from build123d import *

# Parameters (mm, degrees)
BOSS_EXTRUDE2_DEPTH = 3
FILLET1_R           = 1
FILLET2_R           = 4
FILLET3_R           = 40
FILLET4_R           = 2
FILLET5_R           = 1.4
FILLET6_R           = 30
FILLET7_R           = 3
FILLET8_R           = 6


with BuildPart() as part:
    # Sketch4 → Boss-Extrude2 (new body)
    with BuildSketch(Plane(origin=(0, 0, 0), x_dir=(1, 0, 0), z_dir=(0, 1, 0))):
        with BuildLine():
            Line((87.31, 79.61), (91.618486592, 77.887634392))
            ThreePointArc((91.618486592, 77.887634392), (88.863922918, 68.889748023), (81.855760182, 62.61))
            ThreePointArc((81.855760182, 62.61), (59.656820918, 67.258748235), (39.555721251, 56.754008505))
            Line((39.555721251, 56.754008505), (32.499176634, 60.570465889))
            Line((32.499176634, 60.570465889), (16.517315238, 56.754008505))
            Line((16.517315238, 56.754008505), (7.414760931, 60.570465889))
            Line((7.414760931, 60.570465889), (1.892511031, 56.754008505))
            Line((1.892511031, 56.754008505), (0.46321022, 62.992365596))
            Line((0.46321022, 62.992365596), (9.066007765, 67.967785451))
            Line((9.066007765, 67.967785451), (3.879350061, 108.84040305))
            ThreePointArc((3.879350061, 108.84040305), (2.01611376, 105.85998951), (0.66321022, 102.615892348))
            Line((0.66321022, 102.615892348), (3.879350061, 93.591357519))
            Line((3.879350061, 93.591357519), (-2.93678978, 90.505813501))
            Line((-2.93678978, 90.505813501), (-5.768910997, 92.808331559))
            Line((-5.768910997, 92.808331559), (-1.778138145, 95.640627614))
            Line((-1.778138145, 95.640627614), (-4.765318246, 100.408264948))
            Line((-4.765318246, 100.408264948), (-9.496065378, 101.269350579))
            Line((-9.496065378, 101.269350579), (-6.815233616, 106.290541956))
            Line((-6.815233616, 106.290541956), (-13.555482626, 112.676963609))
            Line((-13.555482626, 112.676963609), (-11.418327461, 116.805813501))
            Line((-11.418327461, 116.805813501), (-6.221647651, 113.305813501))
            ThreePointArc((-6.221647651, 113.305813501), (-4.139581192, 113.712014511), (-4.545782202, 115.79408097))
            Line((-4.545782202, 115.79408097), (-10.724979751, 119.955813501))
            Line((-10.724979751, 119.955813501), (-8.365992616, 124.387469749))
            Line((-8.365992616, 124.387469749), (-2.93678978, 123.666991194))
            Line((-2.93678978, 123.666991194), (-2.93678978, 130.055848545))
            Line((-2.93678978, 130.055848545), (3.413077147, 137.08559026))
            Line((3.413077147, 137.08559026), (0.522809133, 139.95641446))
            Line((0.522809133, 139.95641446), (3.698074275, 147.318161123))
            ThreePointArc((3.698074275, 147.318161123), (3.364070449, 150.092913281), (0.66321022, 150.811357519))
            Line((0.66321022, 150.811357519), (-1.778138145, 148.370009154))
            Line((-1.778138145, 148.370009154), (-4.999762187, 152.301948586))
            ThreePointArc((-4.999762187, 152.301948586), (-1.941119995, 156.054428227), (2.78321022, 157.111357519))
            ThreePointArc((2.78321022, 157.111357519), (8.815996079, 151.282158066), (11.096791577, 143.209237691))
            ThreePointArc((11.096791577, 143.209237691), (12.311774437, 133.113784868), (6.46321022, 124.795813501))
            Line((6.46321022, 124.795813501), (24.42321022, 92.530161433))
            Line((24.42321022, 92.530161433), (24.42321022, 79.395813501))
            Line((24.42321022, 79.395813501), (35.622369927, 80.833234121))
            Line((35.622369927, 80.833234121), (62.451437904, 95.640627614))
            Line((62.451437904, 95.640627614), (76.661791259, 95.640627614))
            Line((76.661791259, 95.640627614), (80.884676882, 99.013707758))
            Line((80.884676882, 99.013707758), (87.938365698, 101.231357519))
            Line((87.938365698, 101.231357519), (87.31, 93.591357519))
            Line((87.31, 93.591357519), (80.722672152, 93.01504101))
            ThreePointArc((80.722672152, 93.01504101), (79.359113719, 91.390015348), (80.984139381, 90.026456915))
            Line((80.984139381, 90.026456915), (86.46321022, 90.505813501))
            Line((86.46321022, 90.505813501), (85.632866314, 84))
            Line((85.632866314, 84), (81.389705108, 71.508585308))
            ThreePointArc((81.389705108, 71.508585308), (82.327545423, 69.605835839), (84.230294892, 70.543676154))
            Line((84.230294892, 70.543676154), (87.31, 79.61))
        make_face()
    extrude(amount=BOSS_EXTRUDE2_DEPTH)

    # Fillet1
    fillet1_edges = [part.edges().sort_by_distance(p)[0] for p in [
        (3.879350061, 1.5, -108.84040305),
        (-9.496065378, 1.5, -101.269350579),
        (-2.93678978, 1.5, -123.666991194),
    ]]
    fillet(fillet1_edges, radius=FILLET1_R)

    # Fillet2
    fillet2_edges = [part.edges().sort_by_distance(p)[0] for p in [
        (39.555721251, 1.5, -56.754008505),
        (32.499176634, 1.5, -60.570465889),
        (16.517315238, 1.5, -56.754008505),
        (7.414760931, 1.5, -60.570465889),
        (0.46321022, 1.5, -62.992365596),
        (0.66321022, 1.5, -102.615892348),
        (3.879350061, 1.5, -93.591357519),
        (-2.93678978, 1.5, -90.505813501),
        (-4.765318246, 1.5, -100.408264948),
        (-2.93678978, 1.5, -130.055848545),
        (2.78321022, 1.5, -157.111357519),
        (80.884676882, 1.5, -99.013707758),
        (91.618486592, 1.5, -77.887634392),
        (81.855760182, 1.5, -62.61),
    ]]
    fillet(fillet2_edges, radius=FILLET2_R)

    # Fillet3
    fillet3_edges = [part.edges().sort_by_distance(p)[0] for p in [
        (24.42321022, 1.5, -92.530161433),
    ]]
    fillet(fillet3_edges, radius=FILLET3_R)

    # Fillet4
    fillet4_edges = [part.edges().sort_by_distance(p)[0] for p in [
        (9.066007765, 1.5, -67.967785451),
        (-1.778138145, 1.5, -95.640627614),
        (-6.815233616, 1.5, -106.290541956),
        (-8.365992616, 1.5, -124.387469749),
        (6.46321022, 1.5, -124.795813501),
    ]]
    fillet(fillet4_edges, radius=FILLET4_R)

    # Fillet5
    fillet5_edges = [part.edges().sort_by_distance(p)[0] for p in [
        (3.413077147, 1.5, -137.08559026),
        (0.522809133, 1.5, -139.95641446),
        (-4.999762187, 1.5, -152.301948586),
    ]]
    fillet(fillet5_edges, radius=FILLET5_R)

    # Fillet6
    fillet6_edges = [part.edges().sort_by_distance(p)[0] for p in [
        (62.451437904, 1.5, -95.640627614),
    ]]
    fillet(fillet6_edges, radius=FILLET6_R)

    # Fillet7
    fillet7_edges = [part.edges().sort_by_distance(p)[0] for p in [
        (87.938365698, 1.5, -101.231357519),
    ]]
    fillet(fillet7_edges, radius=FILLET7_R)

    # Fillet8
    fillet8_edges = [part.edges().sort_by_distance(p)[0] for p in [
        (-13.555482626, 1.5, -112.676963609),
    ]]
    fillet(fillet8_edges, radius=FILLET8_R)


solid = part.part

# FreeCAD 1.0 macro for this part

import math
import FreeCAD as App
import Part
import Sketcher
from FreeCAD import Vector
Q = App.Units.Quantity


def edges_at(feature, points):
    """Names of the edges that pass closest to the given points."""
    edges = feature.Shape.Edges
    near = lambda p: min(range(len(edges)), key=lambda i: edges[i].distToShape(Part.Vertex(*p))[0])
    return sorted({f"Edge{near(p) + 1}" for p in points})

doc = App.newDocument("Part")
body = doc.addObject("PartDesign::Body", "Body")

sketch1 = body.newObject("Sketcher::SketchObject", "Sketch")
sketch1.AttachmentSupport = (doc.getObject("XZ_Plane"), [""])
sketch1.MapMode = "FlatFace"
sketch1.addGeometry([
    Part.LineSegment(Vector(91.618487, -77.887634, 0), Vector(87.31, -79.61, 0)),
    Part.LineSegment(Vector(87.31, -79.61, 0), Vector(84.230295, -70.543676, 0)),
    Part.ArcOfCircle(Part.Circle(Vector(82.81, -71.026131, 0), Vector(0, 0, 1), 1.5), math.radians(18.761915), math.radians(198.761915)),
    Part.LineSegment(Vector(81.389705, -71.508585, 0), Vector(85.632866, -84, 0)),
    Part.LineSegment(Vector(85.632866, -84, 0), Vector(86.46321, -90.505814, 0)),
    Part.LineSegment(Vector(86.46321, -90.505814, 0), Vector(80.984139, -90.026457, 0)),
    Part.ArcOfCircle(Part.Circle(Vector(80.853406, -91.520749, 0), Vector(0, 0, 1), 1.5), math.radians(85), math.radians(265)),
    Part.LineSegment(Vector(80.722672, -93.015041, 0), Vector(87.31, -93.591358, 0)),
    Part.LineSegment(Vector(87.31, -93.591358, 0), Vector(87.938366, -101.231358, 0)),
    Part.LineSegment(Vector(87.938366, -101.231358, 0), Vector(80.884677, -99.013708, 0)),
    Part.LineSegment(Vector(80.884677, -99.013708, 0), Vector(76.661791, -95.640628, 0)),
    Part.LineSegment(Vector(76.661791, -95.640628, 0), Vector(62.451438, -95.640628, 0)),
    Part.LineSegment(Vector(62.451438, -95.640628, 0), Vector(35.62237, -80.833234, 0)),
    Part.LineSegment(Vector(35.62237, -80.833234, 0), Vector(24.42321, -79.395814, 0)),
    Part.LineSegment(Vector(24.42321, -79.395814, 0), Vector(24.42321, -92.530161, 0)),
    Part.LineSegment(Vector(24.42321, -92.530161, 0), Vector(6.46321, -124.795814, 0)),
    Part.ArcOfCircle(Part.Circle(Vector(-1.454251, -136.577888, 0), Vector(0, 0, 1), 14.195192), math.radians(-27.849755), math.radians(56.099209)),
    Part.ArcOfCircle(Part.Circle(Vector(-4.999762, -143.020222, 0), Vector(0, 0, 1), 16.097663), math.radians(-61.086765), math.radians(-0.672773)),
    Part.ArcOfCircle(Part.Circle(Vector(1.946903, -149.762517, 0), Vector(0, 0, 1), 7.396274), math.radians(-159.919547), math.radians(-83.507597)),
    Part.LineSegment(Vector(-4.999762, -152.301949, 0), Vector(-1.778138, -148.370009, 0)),
    Part.LineSegment(Vector(-1.778138, -148.370009, 0), Vector(0.66321, -150.811358, 0)),
    Part.ArcOfCircle(Part.Circle(Vector(1.483472, -148.459062, 0), Vector(0, 0, 1), 2.491209), math.radians(-109.224011), math.radians(27.256255)),
    Part.LineSegment(Vector(3.698074, -147.318161, 0), Vector(0.522809, -139.956414, 0)),
    Part.LineSegment(Vector(0.522809, -139.956414, 0), Vector(3.413077, -137.08559, 0)),
    Part.LineSegment(Vector(3.413077, -137.08559, 0), Vector(-2.93679, -130.055849, 0)),
    Part.LineSegment(Vector(-2.93679, -130.055849, 0), Vector(-2.93679, -123.666991, 0)),
    Part.LineSegment(Vector(-2.93679, -123.666991, 0), Vector(-8.365993, -124.38747, 0)),
    Part.LineSegment(Vector(-8.365993, -124.38747, 0), Vector(-10.72498, -119.955814, 0)),
    Part.LineSegment(Vector(-10.72498, -119.955814, 0), Vector(-4.545782, -115.794081, 0)),
    Part.ArcOfCircle(Part.Circle(Vector(-5.383715, -114.549947, 0), Vector(0, 0, 1), 1.5), math.radians(-56.039459), math.radians(123.960541)),
    Part.LineSegment(Vector(-6.221648, -113.305814, 0), Vector(-11.418327, -116.805814, 0)),
    Part.LineSegment(Vector(-11.418327, -116.805814, 0), Vector(-13.555483, -112.676964, 0)),
    Part.LineSegment(Vector(-13.555483, -112.676964, 0), Vector(-6.815234, -106.290542, 0)),
    Part.LineSegment(Vector(-6.815234, -106.290542, 0), Vector(-9.496065, -101.269351, 0)),
    Part.LineSegment(Vector(-9.496065, -101.269351, 0), Vector(-4.765318, -100.408265, 0)),
    Part.LineSegment(Vector(-4.765318, -100.408265, 0), Vector(-1.778138, -95.640628, 0)),
    Part.LineSegment(Vector(-1.778138, -95.640628, 0), Vector(-5.768911, -92.808332, 0)),
    Part.LineSegment(Vector(-5.768911, -92.808332, 0), Vector(-2.93679, -90.505814, 0)),
    Part.LineSegment(Vector(-2.93679, -90.505814, 0), Vector(3.87935, -93.591358, 0)),
    Part.LineSegment(Vector(3.87935, -93.591358, 0), Vector(0.66321, -102.615892, 0)),
    Part.ArcOfCircle(Part.Circle(Vector(21.123731, -95.987283, 0), Vector(0, 0, 1), 21.507473), math.radians(-162.049194), math.radians(-143.300951)),
    Part.LineSegment(Vector(3.87935, -108.840403, 0), Vector(9.066008, -67.967785, 0)),
    Part.LineSegment(Vector(9.066008, -67.967785, 0), Vector(0.46321, -62.992366, 0)),
    Part.LineSegment(Vector(0.46321, -62.992366, 0), Vector(1.892511, -56.754009, 0)),
    Part.LineSegment(Vector(1.892511, -56.754009, 0), Vector(7.414761, -60.570466, 0)),
    Part.LineSegment(Vector(7.414761, -60.570466, 0), Vector(16.517315, -56.754009, 0)),
    Part.LineSegment(Vector(16.517315, -56.754009, 0), Vector(32.499177, -60.570466, 0)),
    Part.LineSegment(Vector(32.499177, -60.570466, 0), Vector(39.555721, -56.754009, 0)),
    Part.ArcOfCircle(Part.Circle(Vector(64.267942, -33.950881, 0), Vector(0, 0, 1), 33.625533), math.radians(-137.300817), math.radians(-58.462971)),
    Part.ArcOfCircle(Part.Circle(Vector(74.082369, -78.335469, 0), Vector(0, 0, 1), 17.541835), math.radians(1.462892), math.radians(63.695958)),
], False)
sketch1.addConstraint([
    Sketcher.Constraint("Coincident", 0, 2, 1, 1),
    Sketcher.Constraint("Tangent", 1, 2, 2, 1),
    Sketcher.Constraint("Tangent", 2, 2, 3, 1),
    Sketcher.Constraint("Coincident", 3, 2, 4, 1),
    Sketcher.Constraint("Coincident", 4, 2, 5, 1),
    Sketcher.Constraint("Tangent", 5, 2, 6, 1),
    Sketcher.Constraint("Tangent", 6, 2, 7, 1),
    Sketcher.Constraint("Coincident", 7, 2, 8, 1),
    Sketcher.Constraint("Coincident", 8, 2, 9, 1),
    Sketcher.Constraint("Coincident", 9, 2, 10, 1),
    Sketcher.Constraint("Coincident", 10, 2, 11, 1),
    Sketcher.Constraint("Coincident", 11, 2, 12, 1),
    Sketcher.Constraint("Coincident", 12, 2, 13, 1),
    Sketcher.Constraint("Coincident", 13, 2, 14, 1),
    Sketcher.Constraint("Coincident", 14, 2, 15, 1),
    Sketcher.Constraint("Coincident", 15, 2, 16, 2),
    Sketcher.Constraint("Coincident", 16, 1, 17, 2),
    Sketcher.Constraint("Coincident", 17, 1, 18, 2),
    Sketcher.Constraint("Coincident", 18, 1, 19, 1),
    Sketcher.Constraint("Coincident", 19, 2, 20, 1),
    Sketcher.Constraint("Coincident", 20, 2, 21, 1),
    Sketcher.Constraint("Coincident", 21, 2, 22, 1),
    Sketcher.Constraint("Coincident", 22, 2, 23, 1),
    Sketcher.Constraint("Coincident", 23, 2, 24, 1),
    Sketcher.Constraint("Coincident", 24, 2, 25, 1),
    Sketcher.Constraint("Coincident", 25, 2, 26, 1),
    Sketcher.Constraint("Coincident", 26, 2, 27, 1),
    Sketcher.Constraint("Coincident", 27, 2, 28, 1),
    Sketcher.Constraint("Tangent", 28, 2, 29, 1),
    Sketcher.Constraint("Tangent", 29, 2, 30, 1),
    Sketcher.Constraint("Coincident", 30, 2, 31, 1),
    Sketcher.Constraint("Coincident", 31, 2, 32, 1),
    Sketcher.Constraint("Coincident", 32, 2, 33, 1),
    Sketcher.Constraint("Coincident", 33, 2, 34, 1),
    Sketcher.Constraint("Coincident", 34, 2, 35, 1),
    Sketcher.Constraint("Coincident", 35, 2, 36, 1),
    Sketcher.Constraint("Coincident", 36, 2, 37, 1),
    Sketcher.Constraint("Coincident", 37, 2, 38, 1),
    Sketcher.Constraint("Coincident", 38, 2, 39, 1),
    Sketcher.Constraint("Coincident", 39, 2, 40, 1),
    Sketcher.Constraint("Coincident", 40, 2, 41, 1),
    Sketcher.Constraint("Coincident", 41, 2, 42, 1),
    Sketcher.Constraint("Coincident", 42, 2, 43, 1),
    Sketcher.Constraint("Coincident", 43, 2, 44, 1),
    Sketcher.Constraint("Coincident", 44, 2, 45, 1),
    Sketcher.Constraint("Coincident", 45, 2, 46, 1),
    Sketcher.Constraint("Coincident", 46, 2, 47, 1),
    Sketcher.Constraint("Coincident", 47, 2, 48, 1),
    Sketcher.Constraint("Coincident", 48, 2, 49, 2),
    Sketcher.Constraint("Coincident", 49, 1, 0, 1),
    Sketcher.Constraint("Horizontal", 11),
    Sketcher.Constraint("Vertical", 14),
    Sketcher.Constraint("Vertical", 25),
    Sketcher.Constraint("Equal", 2, 6),
    Sketcher.Constraint("Equal", 6, 29),
    Sketcher.Constraint("Parallel", 1, 3),
    Sketcher.Constraint("Parallel", 5, 7),
    Sketcher.Constraint("Parallel", 28, 30),
    Sketcher.Constraint("Horizontal", 11, 2, 35, 2),
    Sketcher.Constraint("Horizontal", 4, 2, 37, 2),
    Sketcher.Constraint("Horizontal", 7, 2, 38, 2),
    Sketcher.Constraint("Horizontal", 43, 2, 45, 2),
    Sketcher.Constraint("Horizontal", 44, 2, 46, 2),
    Sketcher.Constraint("Horizontal", 45, 2, 47, 2),
    Sketcher.Constraint("Vertical", 0, 2, 7, 2),
    Sketcher.Constraint("Vertical", 17, 3, 18, 1),
    Sketcher.Constraint("Vertical", 19, 2, 35, 2),
    Sketcher.Constraint("Vertical", 25, 2, 37, 2),
    Sketcher.Constraint("Vertical", 20, 2, 39, 2),
    Sketcher.Constraint("Vertical", 38, 2, 40, 2),
    Sketcher.Constraint("Radius", 2, Q("1.5 mm")),
    Sketcher.Constraint("Angle", 5, Q("175 deg")),
    Sketcher.Constraint("Angle", 20, Q("-45 deg")),
    Sketcher.Constraint("DistanceY", 3, 2, -1, 1, Q("84 mm")),
    Sketcher.Constraint("DistanceY", 0, 2, 48, 2, Q("17 mm")),
    Sketcher.Constraint("Distance", 5, Q("5.5 mm")),
    Sketcher.Constraint("Distance", 43, Q("6.4 mm")),
    Sketcher.Constraint("DistanceX", 2, 3, 0, 2, Q("4.5 mm")),
    Sketcher.Constraint("DistanceY", 17, 1, 20, 2, Q("6.3 mm")),
    Sketcher.Constraint("DistanceX", 24, 2, 15, 2, Q("9.4 mm")),
    Sketcher.Constraint("DistanceY", 30, 2, 29, 2, Q("3.5 mm")),
    Sketcher.Constraint("DistanceX", 37, 2, 42, 2, Q("3.4 mm")),
    Sketcher.Constraint("Distance", 0, Q("4.64 mm")),
    Sketcher.Constraint("Distance", 28, Q("7.45 mm")),
    Sketcher.Constraint("Distance", 37, Q("3.65 mm")),
    Sketcher.Constraint("DistanceX", -1, 1, 2, 3, Q("82.81 mm")),
    Sketcher.Constraint("DistanceY", 0, 2, -1, 1, Q("79.61 mm")),
    Sketcher.Constraint("Radius", 21, Q("2.491209 mm")),
    Sketcher.Constraint("DistanceY", 8, 2, 7, 2, Q("7.64 mm")),
    Sketcher.Constraint("DistanceX", 12, 2, 49, 3, Q("38.459999 mm")),
    Sketcher.Constraint("DistanceX", 20, 2, 17, 1, Q("2.12 mm")),
    Sketcher.Constraint("DistanceY", 15, 2, 27, 2, Q("4.84 mm")),
    Sketcher.Constraint("DistanceY", 27, 2, 29, 2, Q("6.65 mm")),
    Sketcher.Constraint("DistanceX", 42, 2, 13, 2, Q("23.96 mm")),
    Sketcher.Constraint("Distance", 38, Q("7.482001 mm")),
    Sketcher.Constraint("Radius", 16, Q("14.195192 mm")),
    Sketcher.Constraint("Radius", 17, Q("16.097663 mm")),
    Sketcher.Constraint("Radius", 18, Q("7.396274 mm")),
    Sketcher.Constraint("Radius", 40, Q("21.507473 mm")),
    Sketcher.Constraint("Radius", 48, Q("33.625533 mm")),
    Sketcher.Constraint("Radius", 49, Q("17.541835 mm")),
    Sketcher.Constraint("Distance", 26, Q("5.4768 mm")),
    Sketcher.Constraint("Distance", 27, Q("5.020398 mm")),
    Sketcher.Constraint("DistanceY", 29, 3, 6, 3, Q("23.029198 mm")),
    Sketcher.Constraint("DistanceX", 6, 3, 2, 2, Q("0.536299 mm")),
    Sketcher.Constraint("DistanceX", 11, 2, 5, 2, Q("18.532701 mm")),
    Sketcher.Constraint("DistanceY", 21, 3, 21, 2, Q("1.140901 mm")),
    Sketcher.Constraint("DistanceX", 24, 2, 22, 2, Q("3.459599 mm")),
    Sketcher.Constraint("DistanceY", 23, 2, 25, 2, Q("13.418599 mm")),
    Sketcher.Constraint("DistanceX", 31, 2, 28, 2, Q("9.0097 mm")),
    Sketcher.Constraint("DistanceY", 31, 2, 34, 2, Q("12.268699 mm")),
    Sketcher.Constraint("DistanceX", 42, 2, 43, 2, Q("1.429301 mm")),
    Sketcher.Constraint("DistanceY", 42, 2, 44, 2, Q("2.4219 mm")),
    Sketcher.Constraint("Distance", 4, Q("6.558588 mm")),
    Sketcher.Constraint("Distance", 7, Q("6.61249 mm")),
    Sketcher.Constraint("Distance", 12, Q("30.64405 mm")),
    Sketcher.Constraint("Distance", 13, Q("11.29103 mm")),
    Sketcher.Constraint("Distance", 19, Q("5.083209 mm")),
    Sketcher.Constraint("Distance", 23, Q("4.073731 mm")),
    Sketcher.Constraint("Distance", 24, Q("9.473018 mm")),
    Sketcher.Constraint("Distance", 32, Q("9.285329 mm")),
    Sketcher.Constraint("Distance", 33, Q("5.692031 mm")),
    Sketcher.Constraint("Distance", 39, Q("9.58049 mm")),
    Sketcher.Constraint("Distance", 41, Q("41.200392 mm")),
    Sketcher.Constraint("Distance", 44, Q("6.712719 mm")),
    Sketcher.Constraint("Distance", 45, Q("9.87025 mm")),
    Sketcher.Constraint("Distance", 47, Q("8.022479 mm")),
    Sketcher.Constraint("DistanceX", 11, 2, 11, 1, Q("14.210353 mm")),
    Sketcher.Constraint("DistanceY", 14, 2, 14, 1, Q("13.134348 mm")),
    Sketcher.Constraint("DistanceY", 25, 1, 25, 2, Q("6.388857 mm")),
    Sketcher.Constraint("DistanceX", 16, 3, -1, 1, Q("1.454251 mm")),
    Sketcher.Constraint("DistanceY", 16, 3, -1, 1, Q("136.577888 mm")),
    Sketcher.Constraint("DistanceY", 17, 3, -1, 1, Q("143.020222 mm")),
    Sketcher.Constraint("DistanceX", -1, 1, 21, 3, Q("1.483472 mm")),
    Sketcher.Constraint("DistanceX", -1, 1, 40, 3, Q("21.123731 mm")),
    Sketcher.Constraint("DistanceX", -1, 1, 48, 3, Q("64.267942 mm")),
    Sketcher.Constraint("DistanceY", 48, 3, -1, 1, Q("33.950881 mm")),
    Sketcher.Constraint("DistanceX", -1, 1, 49, 3, Q("74.082369 mm")),
    Sketcher.Constraint("DistanceY", 14, 2, -1, 1, Q("92.530161 mm")),
    Sketcher.Constraint("DistanceX", -1, 1, 16, 1, Q("11.096792 mm")),
    Sketcher.Constraint("DistanceX", -1, 1, 17, 1, Q("2.78321 mm")),
    Sketcher.Constraint("DistanceY", 18, 1, -1, 1, Q("152.301949 mm")),
    Sketcher.Constraint("DistanceY", 23, 2, -1, 1, Q("137.08559 mm")),
    Sketcher.Constraint("DistanceY", 26, 2, -1, 1, Q("124.38747 mm")),
    Sketcher.Constraint("DistanceY", 32, 2, -1, 1, Q("106.290542 mm")),
    Sketcher.Constraint("DistanceY", 33, 2, -1, 1, Q("101.269351 mm")),
    Sketcher.Constraint("DistanceX", 34, 2, -1, 1, Q("4.765318 mm")),
    Sketcher.Constraint("DistanceX", 36, 2, -1, 1, Q("5.768911 mm")),
    Sketcher.Constraint("DistanceY", 43, 2, -1, 1, Q("56.754009 mm")),
    Sketcher.Constraint("DistanceX", 6, 3, 8, 2, Q("7.08496 mm")),
    Sketcher.Constraint("DistanceX", 9, 2, 8, 2, Q("7.053689 mm")),
    Sketcher.Constraint("DistanceY", 8, 2, 9, 2, Q("2.21765 mm")),
    Sketcher.Constraint("DistanceY", 30, 2, 31, 2, Q("4.12885 mm")),
    Sketcher.Constraint("DistanceY", 13, 2, 41, 2, Q("11.428028 mm")),
])
pad1 = body.newObject("PartDesign::Pad", "Pad")
pad1.Profile = sketch1
pad1.Length = 3
pad1.Reversed = True
doc.recompute()

fillet = body.newObject("PartDesign::Fillet", "Fillet")
fillet.Base = (pad1, edges_at(pad1, [(3.879, 1.5, -108.84), (-9.496, 1.5, -101.269), (-2.937, 1.5, -123.667)]))
fillet.Radius = 1
doc.recompute()

fillet2 = body.newObject("PartDesign::Fillet", "Fillet001")
fillet2.Base = (fillet, edges_at(fillet, [
    (39.556, 1.5, -56.754),
    (32.499, 1.5, -60.57),
    (16.517, 1.5, -56.754),
    (7.415, 1.5, -60.57),
    (0.463, 1.5, -62.992),
    (0.663, 1.5, -102.616),
    (3.879, 1.5, -93.591),
    (-2.937, 1.5, -90.506),
    (-4.765, 1.5, -100.408),
    (-2.937, 1.5, -130.056),
    (2.783, 1.5, -157.111),
    (80.885, 1.5, -99.014),
    (91.618, 1.5, -77.888),
    (81.856, 1.5, -62.61),
]))
fillet2.Radius = 4
doc.recompute()

fillet3 = body.newObject("PartDesign::Fillet", "Fillet002")
fillet3.Base = (fillet2, edges_at(fillet2, [(24.423, 1.5, -92.53)]))
fillet3.Radius = 40
doc.recompute()

fillet4 = body.newObject("PartDesign::Fillet", "Fillet003")
fillet4.Base = (fillet3, edges_at(fillet3, [
    (9.066, 1.5, -67.968),
    (-1.778, 1.5, -95.641),
    (-6.815, 1.5, -106.291),
    (-8.366, 1.5, -124.387),
    (6.463, 1.5, -124.796),
]))
fillet4.Radius = 2
doc.recompute()

fillet5 = body.newObject("PartDesign::Fillet", "Fillet004")
fillet5.Base = (fillet4, edges_at(fillet4, [(3.413, 1.5, -137.086), (0.523, 1.5, -139.956), (-5, 1.5, -152.302)]))
fillet5.Radius = 1.4
doc.recompute()

fillet6 = body.newObject("PartDesign::Fillet", "Fillet005")
fillet6.Base = (fillet5, edges_at(fillet5, [(62.451, 1.5, -95.641)]))
fillet6.Radius = 30
doc.recompute()

fillet7 = body.newObject("PartDesign::Fillet", "Fillet006")
fillet7.Base = (fillet6, edges_at(fillet6, [(87.938, 1.5, -101.231)]))
fillet7.Radius = 3
doc.recompute()

fillet8 = body.newObject("PartDesign::Fillet", "Fillet007")
fillet8.Base = (fillet7, edges_at(fillet7, [(-13.555, 1.5, -112.677)]))
fillet8.Radius = 6

doc.recompute()
